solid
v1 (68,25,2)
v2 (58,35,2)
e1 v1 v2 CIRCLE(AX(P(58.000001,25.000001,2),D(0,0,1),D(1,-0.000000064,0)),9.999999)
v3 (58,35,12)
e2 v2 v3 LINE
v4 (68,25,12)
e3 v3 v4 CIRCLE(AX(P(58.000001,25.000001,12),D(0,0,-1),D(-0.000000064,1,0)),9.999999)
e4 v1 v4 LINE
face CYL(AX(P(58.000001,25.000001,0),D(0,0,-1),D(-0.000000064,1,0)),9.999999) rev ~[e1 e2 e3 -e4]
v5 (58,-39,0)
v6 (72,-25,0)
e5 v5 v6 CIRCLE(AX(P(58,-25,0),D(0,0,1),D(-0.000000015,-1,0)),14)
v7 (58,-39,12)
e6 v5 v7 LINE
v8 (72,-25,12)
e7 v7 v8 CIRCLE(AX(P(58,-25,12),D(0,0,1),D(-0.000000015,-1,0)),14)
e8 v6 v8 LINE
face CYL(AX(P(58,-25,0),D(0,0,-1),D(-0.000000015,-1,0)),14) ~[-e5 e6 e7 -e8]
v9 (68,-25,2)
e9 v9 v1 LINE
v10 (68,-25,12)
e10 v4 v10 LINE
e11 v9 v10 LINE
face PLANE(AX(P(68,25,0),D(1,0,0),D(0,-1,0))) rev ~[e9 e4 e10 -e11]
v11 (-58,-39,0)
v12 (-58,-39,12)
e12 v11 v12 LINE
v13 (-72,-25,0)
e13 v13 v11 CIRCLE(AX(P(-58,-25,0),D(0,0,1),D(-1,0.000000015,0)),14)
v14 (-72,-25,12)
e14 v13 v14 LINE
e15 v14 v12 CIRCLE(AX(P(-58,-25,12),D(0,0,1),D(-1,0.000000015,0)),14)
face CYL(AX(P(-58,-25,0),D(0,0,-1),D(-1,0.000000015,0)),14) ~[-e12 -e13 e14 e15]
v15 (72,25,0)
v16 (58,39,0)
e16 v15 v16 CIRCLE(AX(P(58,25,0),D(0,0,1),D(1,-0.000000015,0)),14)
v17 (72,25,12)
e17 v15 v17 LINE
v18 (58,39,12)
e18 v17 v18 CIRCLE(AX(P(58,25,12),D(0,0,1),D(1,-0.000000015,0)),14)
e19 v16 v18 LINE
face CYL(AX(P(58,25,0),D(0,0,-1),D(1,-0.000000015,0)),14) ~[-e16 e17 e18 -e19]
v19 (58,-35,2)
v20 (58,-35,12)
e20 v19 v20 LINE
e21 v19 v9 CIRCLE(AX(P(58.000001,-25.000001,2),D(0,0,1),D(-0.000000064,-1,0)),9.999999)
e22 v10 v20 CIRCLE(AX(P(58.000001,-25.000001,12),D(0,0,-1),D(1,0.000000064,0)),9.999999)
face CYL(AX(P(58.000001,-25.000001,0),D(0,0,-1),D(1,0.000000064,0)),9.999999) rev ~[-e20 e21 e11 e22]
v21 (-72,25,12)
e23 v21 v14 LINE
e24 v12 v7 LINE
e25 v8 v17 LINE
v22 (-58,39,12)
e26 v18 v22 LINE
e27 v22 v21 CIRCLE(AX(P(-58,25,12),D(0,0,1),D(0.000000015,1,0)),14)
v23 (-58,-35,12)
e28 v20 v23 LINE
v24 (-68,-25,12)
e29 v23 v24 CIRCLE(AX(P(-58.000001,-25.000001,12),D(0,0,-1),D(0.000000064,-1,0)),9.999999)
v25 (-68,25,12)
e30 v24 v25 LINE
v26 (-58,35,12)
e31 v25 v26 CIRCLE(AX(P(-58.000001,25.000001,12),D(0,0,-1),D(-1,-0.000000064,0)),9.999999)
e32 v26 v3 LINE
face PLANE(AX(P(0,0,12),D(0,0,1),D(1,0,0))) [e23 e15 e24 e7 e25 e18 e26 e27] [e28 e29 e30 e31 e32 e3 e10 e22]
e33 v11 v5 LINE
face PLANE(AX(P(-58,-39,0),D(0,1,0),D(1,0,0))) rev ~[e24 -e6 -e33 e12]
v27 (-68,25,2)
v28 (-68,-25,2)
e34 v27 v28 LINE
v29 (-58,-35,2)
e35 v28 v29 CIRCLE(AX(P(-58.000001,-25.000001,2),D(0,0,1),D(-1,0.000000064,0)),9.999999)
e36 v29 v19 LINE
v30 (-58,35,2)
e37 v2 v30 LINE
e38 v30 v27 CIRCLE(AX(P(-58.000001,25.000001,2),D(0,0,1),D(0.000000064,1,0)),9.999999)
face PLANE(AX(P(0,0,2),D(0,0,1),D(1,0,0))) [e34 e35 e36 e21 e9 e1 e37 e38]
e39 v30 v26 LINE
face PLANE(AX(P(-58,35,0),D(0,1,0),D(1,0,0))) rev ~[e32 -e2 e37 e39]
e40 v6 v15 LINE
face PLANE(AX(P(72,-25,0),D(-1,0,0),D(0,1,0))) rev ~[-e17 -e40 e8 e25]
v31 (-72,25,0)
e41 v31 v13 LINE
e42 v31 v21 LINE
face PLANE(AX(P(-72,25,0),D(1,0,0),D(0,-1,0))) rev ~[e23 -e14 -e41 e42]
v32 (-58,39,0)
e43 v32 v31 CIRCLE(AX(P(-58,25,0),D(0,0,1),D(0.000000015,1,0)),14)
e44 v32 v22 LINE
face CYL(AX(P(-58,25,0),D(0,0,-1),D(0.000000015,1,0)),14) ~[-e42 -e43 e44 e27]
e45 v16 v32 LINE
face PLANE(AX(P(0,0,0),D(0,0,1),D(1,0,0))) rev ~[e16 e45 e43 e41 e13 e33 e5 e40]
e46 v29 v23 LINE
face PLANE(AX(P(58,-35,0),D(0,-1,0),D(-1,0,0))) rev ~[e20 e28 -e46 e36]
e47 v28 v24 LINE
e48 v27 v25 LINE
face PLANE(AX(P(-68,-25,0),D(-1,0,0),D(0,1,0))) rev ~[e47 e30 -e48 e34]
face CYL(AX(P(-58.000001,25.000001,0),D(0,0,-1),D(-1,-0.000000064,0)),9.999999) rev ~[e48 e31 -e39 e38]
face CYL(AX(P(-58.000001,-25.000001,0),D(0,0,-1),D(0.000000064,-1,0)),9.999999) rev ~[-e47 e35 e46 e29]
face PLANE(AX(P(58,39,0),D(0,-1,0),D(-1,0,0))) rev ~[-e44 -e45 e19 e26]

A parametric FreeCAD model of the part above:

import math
import FreeCAD as App
import Part
import Sketcher
Q = App.Units.Quantity

doc = App.newDocument("Part")
body = doc.addObject("PartDesign::Body", "Body")

# Sketch on XY plane
sketch1 = body.newObject("Sketcher::SketchObject", "Sketch")
sketch1.AttachmentSupport = (doc.getObject("XY_Plane"), [""])
sketch1.MapMode = "FlatFace"
sketch1.addGeometry(Part.ArcOfCircle(Part.Circle(App.Vector(-58, -25, 0), App.Vector(0, 0, 1), 10), math.radians(180), math.radians(270)), False)
sketch1.addGeometry(Part.LineSegment(App.Vector(-58, -35, 0), App.Vector(58, -35, 0)), False)
sketch1.addGeometry(Part.ArcOfCircle(Part.Circle(App.Vector(58, -25, 0), App.Vector(0, 0, 1), 10), math.radians(-90), math.radians(0)), False)
sketch1.addGeometry(Part.LineSegment(App.Vector(68, -25, 0), App.Vector(68, 25, 0)), False)
sketch1.addGeometry(Part.ArcOfCircle(Part.Circle(App.Vector(58, 25, 0), App.Vector(0, 0, 1), 10), math.radians(0), math.radians(90)), False)
sketch1.addGeometry(Part.LineSegment(App.Vector(58, 35, 0), App.Vector(-58, 35, 0)), False)
sketch1.addGeometry(Part.ArcOfCircle(Part.Circle(App.Vector(-58, 25, 0), App.Vector(0, 0, 1), 10), math.radians(90), math.radians(180)), False)
sketch1.addGeometry(Part.LineSegment(App.Vector(-68, 25, 0), App.Vector(-68, -25, 0)), False)
sketch1.addConstraint(Sketcher.Constraint("Tangent", 0, 2, 1, 1))
sketch1.addConstraint(Sketcher.Constraint("Tangent", 1, 2, 2, 1))
sketch1.addConstraint(Sketcher.Constraint("Tangent", 2, 2, 3, 1))
sketch1.addConstraint(Sketcher.Constraint("Tangent", 3, 2, 4, 1))
sketch1.addConstraint(Sketcher.Constraint("Tangent", 4, 2, 5, 1))
sketch1.addConstraint(Sketcher.Constraint("Tangent", 5, 2, 6, 1))
sketch1.addConstraint(Sketcher.Constraint("Tangent", 6, 2, 7, 1))
sketch1.addConstraint(Sketcher.Constraint("Tangent", 7, 2, 0, 1))
sketch1.addConstraint(Sketcher.Constraint("Horizontal", 1))
sketch1.addConstraint(Sketcher.Constraint("Vertical", 3))
sketch1.addConstraint(Sketcher.Constraint("Horizontal", 5))
sketch1.addConstraint(Sketcher.Constraint("Vertical", 7))
sketch1.addConstraint(Sketcher.Constraint("Equal", 0, 2))
sketch1.addConstraint(Sketcher.Constraint("Equal", 2, 4))
sketch1.addConstraint(Sketcher.Constraint("Equal", 4, 6))
sketch1.addConstraint(Sketcher.Constraint("Symmetric", 0, 3, 4, 3, -1, 1))
sketch1.addConstraint(Sketcher.Constraint("Radius", 0, Q("9.999999 mm")))
sketch1.addConstraint(Sketcher.Constraint("DistanceX", 1, 1, 1, 2, Q("116 mm")))
sketch1.addConstraint(Sketcher.Constraint("DistanceY", 3, 1, 3, 2, Q("50 mm")))
pad1 = body.newObject("PartDesign::Pad", "Pad")
pad1.Profile = sketch1
pad1.Length = 2

# Sketch on XY plane
sketch2 = body.newObject("Sketcher::SketchObject", "Sketch001")
sketch2.AttachmentSupport = (doc.getObject("XY_Plane"), [""])
sketch2.MapMode = "FlatFace"
sketch2.addGeometry(Part.LineSegment(App.Vector(58, 39, 0), App.Vector(-58, 39, 0)), False)
sketch2.addGeometry(Part.ArcOfCircle(Part.Circle(App.Vector(-58, 25, 0), App.Vector(0, 0, 1), 14), math.radians(90), math.radians(180)), False)
sketch2.addGeometry(Part.LineSegment(App.Vector(-72, 25, 0), App.Vector(-72, -25, 0)), False)
sketch2.addGeometry(Part.ArcOfCircle(Part.Circle(App.Vector(-58, -25, 0), App.Vector(0, 0, 1), 14), math.radians(180), math.radians(270)), False)
sketch2.addGeometry(Part.LineSegment(App.Vector(-58, -39, 0), App.Vector(58, -39, 0)), False)
sketch2.addGeometry(Part.ArcOfCircle(Part.Circle(App.Vector(58, -25, 0), App.Vector(0, 0, 1), 14), math.radians(-90), math.radians(0)), False)
sketch2.addGeometry(Part.LineSegment(App.Vector(72, -25, 0), App.Vector(72, 25, 0)), False)
sketch2.addGeometry(Part.ArcOfCircle(Part.Circle(App.Vector(58, 25, 0), App.Vector(0, 0, 1), 14), math.radians(0), math.radians(90)), False)
sketch2.addGeometry(Part.ArcOfCircle(Part.Circle(App.Vector(58, -25, 0), App.Vector(0, 0, 1), 10), math.radians(-90), math.radians(0)), False)
sketch2.addGeometry(Part.LineSegment(App.Vector(58, -35, 0), App.Vector(-58, -35, 0)), False)
sketch2.addGeometry(Part.ArcOfCircle(Part.Circle(App.Vector(-58, -25, 0), App.Vector(0, 0, 1), 10), math.radians(180), math.radians(270)), False)
sketch2.addGeometry(Part.LineSegment(App.Vector(-68, -25, 0), App.Vector(-68, 25, 0)), False)
sketch2.addGeometry(Part.ArcOfCircle(Part.Circle(App.Vector(-58, 25, 0), App.Vector(0, 0, 1), 10), math.radians(90), math.radians(180)), False)
sketch2.addGeometry(Part.LineSegment(App.Vector(-58, 35, 0), App.Vector(58, 35, 0)), False)
sketch2.addGeometry(Part.ArcOfCircle(Part.Circle(App.Vector(58, 25, 0), App.Vector(0, 0, 1), 10), math.radians(0), math.radians(90)), False)
sketch2.addGeometry(Part.LineSegment(App.Vector(68, 25, 0), App.Vector(68, -25, 0)), False)
sketch2.addConstraint(Sketcher.Constraint("Tangent", 0, 2, 1, 1))
sketch2.addConstraint(Sketcher.Constraint("Tangent", 1, 2, 2, 1))
sketch2.addConstraint(Sketcher.Constraint("Tangent", 2, 2, 3, 1))
sketch2.addConstraint(Sketcher.Constraint("Tangent", 3, 2, 4, 1))
sketch2.addConstraint(Sketcher.Constraint("Tangent", 4, 2, 5, 1))
sketch2.addConstraint(Sketcher.Constraint("Tangent", 5, 2, 6, 1))
sketch2.addConstraint(Sketcher.Constraint("Tangent", 6, 2, 7, 1))
sketch2.addConstraint(Sketcher.Constraint("Tangent", 7, 2, 0, 1))
sketch2.addConstraint(Sketcher.Constraint("Tangent", 8, 1, 9, 1))
sketch2.addConstraint(Sketcher.Constraint("Tangent", 9, 2, 10, 2))
sketch2.addConstraint(Sketcher.Constraint("Tangent", 10, 1, 11, 1))
sketch2.addConstraint(Sketcher.Constraint("Tangent", 11, 2, 12, 2))
sketch2.addConstraint(Sketcher.Constraint("Tangent", 12, 1, 13, 1))
sketch2.addConstraint(Sketcher.Constraint("Tangent", 13, 2, 14, 2))
sketch2.addConstraint(Sketcher.Constraint("Tangent", 14, 1, 15, 1))
sketch2.addConstraint(Sketcher.Constraint("Tangent", 15, 2, 8, 2))
sketch2.addConstraint(Sketcher.Constraint("Horizontal", 0))
sketch2.addConstraint(Sketcher.Constraint("Vertical", 2))
sketch2.addConstraint(Sketcher.Constraint("Horizontal", 4))
sketch2.addConstraint(Sketcher.Constraint("Vertical", 6))
sketch2.addConstraint(Sketcher.Constraint("Horizontal", 9))
sketch2.addConstraint(Sketcher.Constraint("Vertical", 11))
sketch2.addConstraint(Sketcher.Constraint("Horizontal", 13))
sketch2.addConstraint(Sketcher.Constraint("Vertical", 15))
sketch2.addConstraint(Sketcher.Constraint("Coincident", 8, 3, 5, 3))
sketch2.addConstraint(Sketcher.Constraint("Coincident", 10, 3, 3, 3))
sketch2.addConstraint(Sketcher.Constraint("Coincident", 12, 3, 1, 3))
sketch2.addConstraint(Sketcher.Constraint("Equal", 1, 3))
sketch2.addConstraint(Sketcher.Constraint("Equal", 3, 5))
sketch2.addConstraint(Sketcher.Constraint("Equal", 5, 7))
sketch2.addConstraint(Sketcher.Constraint("Equal", 12, 14))
sketch2.addConstraint(Sketcher.Constraint("Symmetric", 1, 3, 5, 3, -1, 1))
sketch2.addConstraint(Sketcher.Constraint("Radius", 1, Q("14 mm")))
sketch2.addConstraint(Sketcher.Constraint("Radius", 8, Q("9.999999 mm")))
sketch2.addConstraint(Sketcher.Constraint("DistanceX", 0, 2, 0, 1, Q("116 mm")))
sketch2.addConstraint(Sketcher.Constraint("DistanceY", 2, 2, 2, 1, Q("50 mm")))
pad2 = body.newObject("PartDesign::Pad", "Pad001")
pad2.Profile = sketch2
pad2.Length = 12

doc.recompute()
